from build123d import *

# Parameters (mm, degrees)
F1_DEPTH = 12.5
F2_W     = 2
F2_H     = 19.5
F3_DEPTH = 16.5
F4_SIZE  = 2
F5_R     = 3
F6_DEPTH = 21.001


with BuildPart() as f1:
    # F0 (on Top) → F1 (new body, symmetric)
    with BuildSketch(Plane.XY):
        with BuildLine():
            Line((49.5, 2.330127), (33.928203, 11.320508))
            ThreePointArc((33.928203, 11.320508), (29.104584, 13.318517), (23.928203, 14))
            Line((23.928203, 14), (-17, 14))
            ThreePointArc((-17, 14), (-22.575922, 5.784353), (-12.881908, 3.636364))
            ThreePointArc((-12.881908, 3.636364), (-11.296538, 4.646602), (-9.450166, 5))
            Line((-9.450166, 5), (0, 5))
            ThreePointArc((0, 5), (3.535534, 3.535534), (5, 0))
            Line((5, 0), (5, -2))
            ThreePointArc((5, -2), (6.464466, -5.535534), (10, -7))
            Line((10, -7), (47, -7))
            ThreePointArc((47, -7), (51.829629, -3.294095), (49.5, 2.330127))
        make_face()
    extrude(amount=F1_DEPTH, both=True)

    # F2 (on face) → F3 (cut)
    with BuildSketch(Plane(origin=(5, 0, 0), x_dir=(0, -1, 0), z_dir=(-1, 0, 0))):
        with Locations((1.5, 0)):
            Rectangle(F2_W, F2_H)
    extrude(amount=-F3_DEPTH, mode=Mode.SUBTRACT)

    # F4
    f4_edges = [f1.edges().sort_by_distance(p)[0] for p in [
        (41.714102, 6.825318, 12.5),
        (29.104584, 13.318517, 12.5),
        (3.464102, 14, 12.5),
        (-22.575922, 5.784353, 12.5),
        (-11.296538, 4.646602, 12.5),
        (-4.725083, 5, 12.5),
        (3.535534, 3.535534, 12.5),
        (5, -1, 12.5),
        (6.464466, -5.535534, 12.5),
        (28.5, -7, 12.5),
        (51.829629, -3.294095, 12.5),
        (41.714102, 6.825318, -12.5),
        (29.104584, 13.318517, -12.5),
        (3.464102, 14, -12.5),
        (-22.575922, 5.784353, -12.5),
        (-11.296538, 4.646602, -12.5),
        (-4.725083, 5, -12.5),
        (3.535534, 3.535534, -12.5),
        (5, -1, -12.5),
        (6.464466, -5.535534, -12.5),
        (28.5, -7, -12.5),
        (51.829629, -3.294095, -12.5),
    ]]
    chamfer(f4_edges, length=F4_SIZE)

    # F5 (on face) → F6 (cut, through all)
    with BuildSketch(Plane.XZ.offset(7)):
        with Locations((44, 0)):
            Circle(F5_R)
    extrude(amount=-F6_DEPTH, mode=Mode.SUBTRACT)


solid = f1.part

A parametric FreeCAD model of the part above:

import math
import FreeCAD as App
import Part
import Sketcher
from FreeCAD import Vector
Q = App.Units.Quantity


def edges_at(feature, points):
    """Names of the edges that pass closest to the given points."""
    edges = feature.Shape.Edges
    near = lambda p: min(range(len(edges)), key=lambda i: edges[i].distToShape(Part.Vertex(*p))[0])
    return sorted({f"Edge{near(p) + 1}" for p in points})


def add_polygon(sketch, points):
    """Adds a closed chain of lines whose ends are joined by coincident constraints."""
    first, n = sketch.GeometryCount, len(points)
    for a, b in zip(points, points[1:] + points[:1]):
        sketch.addGeometry(Part.LineSegment(App.Vector(*a, 0), App.Vector(*b, 0)), False)
    for i in range(n):
        sketch.addConstraint(Sketcher.Constraint("Coincident", first + i, 2, first + (i + 1) % n, 1))

doc = App.newDocument("Part")
body = doc.addObject("PartDesign::Body", "Body")

sketch1 = doc.addObject("Sketcher::SketchObject", "Sketch")
body.addObject(sketch1)
sketch1.AttachmentSupport = (doc.XY_Plane, [""])
sketch1.MapMode = "FlatFace"
sketch1.addGeometry([
    Part.LineSegment(Vector(49.5, 2.3, 0), Vector(33.9, 11.3, 0)),
    Part.ArcOfCircle(Part.Circle(Vector(23.9, -6, 0), Vector(0, 0, 1), 20), math.radians(60), math.radians(90)),
    Part.LineSegment(Vector(23.9, 14, 0), Vector(-17, 14, 0)),
    Part.ArcOfCircle(Part.Circle(Vector(-17, 8, 0), Vector(0, 0, 1), 6), math.radians(90), math.radians(313)),
    Part.ArcOfCircle(Part.Circle(Vector(-9.5, 0, 0), Vector(0, 0, 1), 5), math.radians(90), math.radians(133)),
    Part.LineSegment(Vector(-9.5, 5, 0), Vector(0, 5, 0)),
    Part.ArcOfCircle(Part.Circle(Vector(0, 0, 0), Vector(0, 0, 1), 5), math.radians(0), math.radians(90)),
    Part.LineSegment(Vector(5, 0, 0), Vector(5, -2, 0)),
    Part.ArcOfCircle(Part.Circle(Vector(10, -2, 0), Vector(0, 0, 1), 5), math.radians(180), math.radians(270)),
    Part.LineSegment(Vector(10, -7, 0), Vector(47, -7, 0)),
    Part.ArcOfCircle(Part.Circle(Vector(47, -2, 0), Vector(0, 0, 1), 5), math.radians(-90), math.radians(60)),
], False)
sketch1.addConstraint([
    Sketcher.Constraint("Tangent", 0, 2, 1, 1),
    Sketcher.Constraint("Tangent", 1, 2, 2, 1),
    Sketcher.Constraint("Tangent", 2, 2, 3, 1),
    Sketcher.Constraint("Tangent", 3, 2, 4, 2),
    Sketcher.Constraint("Tangent", 4, 1, 5, 1),
    Sketcher.Constraint("Tangent", 5, 2, 6, 2),
    Sketcher.Constraint("Tangent", 6, 1, 7, 1),
    Sketcher.Constraint("Tangent", 7, 2, 8, 1),
    Sketcher.Constraint("Tangent", 8, 2, 9, 1),
    Sketcher.Constraint("Tangent", 9, 2, 10, 1),
    Sketcher.Constraint("Tangent", 10, 2, 0, 1),
    Sketcher.Constraint("Horizontal", 2),
    Sketcher.Constraint("Horizontal", 5),
    Sketcher.Constraint("Vertical", 7),
    Sketcher.Constraint("Horizontal", 9),
    Sketcher.Constraint("Coincident", 6, 3, -1, 1),
    Sketcher.Constraint("Equal", 4, 6),
    Sketcher.Constraint("Equal", 6, 8),
    Sketcher.Constraint("Equal", 8, 10),
    Sketcher.Constraint("Radius", 3, Q("6 mm")),
    Sketcher.Constraint("Radius", 6, Q("5 mm")),
    Sketcher.Constraint("DistanceX", 9, 1, 9, 2, Q("37 mm")),
    Sketcher.Constraint("DistanceY", 7, 2, 7, 1, Q("2 mm")),
    Sketcher.Constraint("Angle", 0, Q("150.000001 deg")),
    Sketcher.Constraint("DistanceX", 3, 3, -1, 1, Q("17 mm")),
    Sketcher.Constraint("DistanceY", -1, 1, 3, 3, Q("8 mm")),
    Sketcher.Constraint("DistanceX", 1, 2, 0, 2, Q("10 mm")),
])
pad1 = doc.addObject("PartDesign::Pad", "Pad")
body.addObject(pad1)
pad1.Profile = sketch1
pad1.Length = 25
pad1.Midplane = True

sketch2 = doc.addObject("Sketcher::SketchObject", "Sketch001")
body.addObject(sketch2)
sketch2.AttachmentSupport = (doc.YZ_Plane, [""])
sketch2.MapMode = "FlatFace"
sketch2.AttachmentOffset = App.Placement(Vector(0, 0, 5), App.Rotation())
add_polygon(sketch2, [(-0.5, 9.8), (-0.5, -9.8), (-2.5, -9.8), (-2.5, 9.8)])
sketch2.addConstraint([
    Sketcher.Constraint("Vertical", 0),
    Sketcher.Constraint("Horizontal", 1),
    Sketcher.Constraint("Vertical", 2),
    Sketcher.Constraint("Horizontal", 3),
    Sketcher.Constraint("DistanceX", 1, 2, 1, 1, Q("2 mm")),
    Sketcher.Constraint("DistanceY", 0, 2, 0, 1, Q("19.5 mm")),
    Sketcher.Constraint("DistanceX", 0, 2, -1, 1, Q("0.5 mm")),
    Sketcher.Constraint("DistanceY", 0, 2, -1, 1, Q("9.75 mm")),
])
pocket1 = doc.addObject("PartDesign::Pocket", "Pocket")
body.addObject(pocket1)
pocket1.Profile = sketch2
pocket1.Length = 16.5
pocket1.Reversed = True
doc.recompute()

chamfer = doc.addObject("PartDesign::Chamfer", "Chamfer")
body.addObject(chamfer)
chamfer.Base = (pocket1, edges_at(pocket1, [
    (41.714, 6.825, 12.5),
    (29.105, 13.319, 12.5),
    (3.464, 14, 12.5),
    (-22.576, 5.784, 12.5),
    (-11.297, 4.647, 12.5),
    (-4.725, 5, 12.5),
    (3.536, 3.536, 12.5),
    (5, -1, 12.5),
    (6.464, -5.536, 12.5),
    (28.5, -7, 12.5),
    (51.83, -3.294, 12.5),
    (41.714, 6.825, -12.5),
    (29.105, 13.319, -12.5),
    (3.464, 14, -12.5),
    (-22.576, 5.784, -12.5),
    (-11.297, 4.647, -12.5),
    (-4.725, 5, -12.5),
    (3.536, 3.536, -12.5),
    (5, -1, -12.5),
    (6.464, -5.536, -12.5),
    (28.5, -7, -12.5),
    (51.83, -3.294, -12.5),
]))
chamfer.Size = 2

sketch3 = doc.addObject("Sketcher::SketchObject", "Sketch002")
body.addObject(sketch3)
sketch3.AttachmentSupport = (doc.XZ_Plane, [""])
sketch3.MapMode = "FlatFace"
sketch3.AttachmentOffset = App.Placement(Vector(0, 0, 7), App.Rotation())
sketch3.addGeometry(Part.Circle(Vector(44, 0, 0), Vector(0, 0, 1), 3), False)
sketch3.addConstraint([
    Sketcher.Constraint("PointOnObject", 0, 3, -1),
    Sketcher.Constraint("Diameter", 0, Q("6 mm")),
    Sketcher.Constraint("DistanceX", -1, 1, 0, 3, Q("44 mm")),
])
pocket2 = doc.addObject("PartDesign::Pocket", "Pocket001")
body.addObject(pocket2)
pocket2.Profile = sketch3
pocket2.Type = "ThroughAll"

doc.recompute()
